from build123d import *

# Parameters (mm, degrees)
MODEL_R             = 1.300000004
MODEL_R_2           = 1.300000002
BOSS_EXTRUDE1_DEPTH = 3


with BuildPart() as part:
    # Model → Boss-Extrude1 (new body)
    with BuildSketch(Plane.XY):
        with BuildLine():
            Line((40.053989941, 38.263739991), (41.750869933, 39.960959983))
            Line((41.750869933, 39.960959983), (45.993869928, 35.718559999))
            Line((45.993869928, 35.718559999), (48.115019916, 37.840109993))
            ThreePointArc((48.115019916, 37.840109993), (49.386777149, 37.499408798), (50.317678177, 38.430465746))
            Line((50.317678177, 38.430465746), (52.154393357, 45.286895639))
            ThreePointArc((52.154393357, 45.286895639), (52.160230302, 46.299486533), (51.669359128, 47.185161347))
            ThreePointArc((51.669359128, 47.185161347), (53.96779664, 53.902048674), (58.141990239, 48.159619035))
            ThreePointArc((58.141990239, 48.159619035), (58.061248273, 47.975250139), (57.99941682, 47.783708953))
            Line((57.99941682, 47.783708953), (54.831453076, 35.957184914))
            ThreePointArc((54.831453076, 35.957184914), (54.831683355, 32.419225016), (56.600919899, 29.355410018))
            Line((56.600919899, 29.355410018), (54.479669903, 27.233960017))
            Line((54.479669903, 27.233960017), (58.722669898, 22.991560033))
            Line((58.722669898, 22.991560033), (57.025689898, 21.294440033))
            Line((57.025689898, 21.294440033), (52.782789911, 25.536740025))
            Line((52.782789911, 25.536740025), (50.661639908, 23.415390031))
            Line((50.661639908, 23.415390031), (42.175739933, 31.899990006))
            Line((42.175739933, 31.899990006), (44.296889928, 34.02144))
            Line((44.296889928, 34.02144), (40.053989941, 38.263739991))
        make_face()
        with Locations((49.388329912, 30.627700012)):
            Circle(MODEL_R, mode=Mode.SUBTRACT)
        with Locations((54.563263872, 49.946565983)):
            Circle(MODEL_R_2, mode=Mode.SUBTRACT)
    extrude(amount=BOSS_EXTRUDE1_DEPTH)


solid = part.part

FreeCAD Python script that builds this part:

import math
import FreeCAD as App
import Part
import Sketcher

V = App.Vector
Q = App.Units.Quantity

doc = App.newDocument("Part")
body = doc.addObject("PartDesign::Body", "Body")

# Sketch on XY plane
sketch1 = doc.addObject("Sketcher::SketchObject", "Sketch")
body.addObject(sketch1)
sketch1.AttachmentSupport = (doc.XY_Plane, [""])
sketch1.MapMode = "FlatFace"
sketch1.addGeometry(Part.LineSegment(V(41.75087, 39.96096, 0), V(40.05399, 38.26374, 0)), False)
sketch1.addGeometry(Part.LineSegment(V(40.05399, 38.26374, 0), V(44.29689, 34.02144, 0)), False)
sketch1.addGeometry(Part.LineSegment(V(44.29689, 34.02144, 0), V(42.17574, 31.89999, 0)), False)
sketch1.addGeometry(Part.LineSegment(V(42.17574, 31.89999, 0), V(50.66164, 23.41539, 0)), False)
sketch1.addGeometry(Part.LineSegment(V(50.66164, 23.41539, 0), V(52.78279, 25.53674, 0)), False)
sketch1.addGeometry(Part.LineSegment(V(52.78279, 25.53674, 0), V(57.02569, 21.29444, 0)), False)
sketch1.addGeometry(Part.LineSegment(V(57.02569, 21.29444, 0), V(58.72267, 22.99156, 0)), False)
sketch1.addGeometry(Part.LineSegment(V(58.72267, 22.99156, 0), V(54.47967, 27.23396, 0)), False)
sketch1.addGeometry(Part.LineSegment(V(54.47967, 27.23396, 0), V(56.60092, 29.35541, 0)), False)
sketch1.addGeometry(Part.ArcOfCircle(Part.Circle(V(61.433245, 34.188635, 0), V(0, 0, 1), 6.834576), math.radians(165.003195), math.radians(225.005333)), False)
sketch1.addGeometry(Part.LineSegment(V(54.831453, 35.957185, 0), V(57.999417, 47.783709, 0)), False)
sketch1.addGeometry(Part.ArcOfCircle(Part.Circle(V(59.934095, 47.264925, 0), V(0, 0, 1), 2.003027), math.radians(153.469718), math.radians(164.989281)), False)
sketch1.addGeometry(Part.ArcOfCircle(Part.Circle(V(54.563294, 49.946584, 0), V(0, 0, 1), 4.000039), math.radians(-26.534522), math.radians(223.65774)), False)
sketch1.addGeometry(Part.ArcOfCircle(Part.Circle(V(50.222406, 45.804345, 0), V(0, 0, 1), 2.000082), math.radians(-14.993763), math.radians(43.660207)), False)
sketch1.addGeometry(Part.LineSegment(V(52.154393, 45.286896, 0), V(50.317678, 38.430466, 0)), False)
sketch1.addGeometry(Part.ArcOfCircle(Part.Circle(V(49.045942, 38.771088, 0), V(0, 0, 1), 1.316562), math.radians(-134.998292), math.radians(-14.994172)), False)
sketch1.addGeometry(Part.LineSegment(V(48.11502, 37.84011, 0), V(45.99387, 35.71856, 0)), False)
sketch1.addGeometry(Part.LineSegment(V(45.99387, 35.71856, 0), V(41.75087, 39.96096, 0)), False)
sketch1.addGeometry(Part.Circle(V(49.38833, 30.6277, 0), V(0, 0, 1), 1.3), False)
sketch1.addGeometry(Part.Circle(V(54.563264, 49.946566, 0), V(0, 0, 1), 1.3), False)
sketch1.addConstraint(Sketcher.Constraint("Coincident", 0, 2, 1, 1))
sketch1.addConstraint(Sketcher.Constraint("Coincident", 1, 2, 2, 1))
sketch1.addConstraint(Sketcher.Constraint("Coincident", 2, 2, 3, 1))
sketch1.addConstraint(Sketcher.Constraint("Coincident", 3, 2, 4, 1))
sketch1.addConstraint(Sketcher.Constraint("Coincident", 4, 2, 5, 1))
sketch1.addConstraint(Sketcher.Constraint("Coincident", 5, 2, 6, 1))
sketch1.addConstraint(Sketcher.Constraint("Coincident", 6, 2, 7, 1))
sketch1.addConstraint(Sketcher.Constraint("Coincident", 7, 2, 8, 1))
sketch1.addConstraint(Sketcher.Constraint("Coincident", 8, 2, 9, 2))
sketch1.addConstraint(Sketcher.Constraint("Coincident", 9, 1, 10, 1))
sketch1.addConstraint(Sketcher.Constraint("Coincident", 10, 2, 11, 2))
sketch1.addConstraint(Sketcher.Constraint("Coincident", 11, 1, 12, 1))
sketch1.addConstraint(Sketcher.Constraint("Coincident", 12, 2, 13, 2))
sketch1.addConstraint(Sketcher.Constraint("Coincident", 13, 1, 14, 1))
sketch1.addConstraint(Sketcher.Constraint("Coincident", 14, 2, 15, 2))
sketch1.addConstraint(Sketcher.Constraint("Coincident", 15, 1, 16, 1))
sketch1.addConstraint(Sketcher.Constraint("Coincident", 16, 2, 17, 1))
sketch1.addConstraint(Sketcher.Constraint("Coincident", 17, 2, 0, 1))
sketch1.addConstraint(Sketcher.Constraint("Equal", 18, 19))
sketch1.addConstraint(Sketcher.Constraint("Perpendicular", 1, 2))
sketch1.addConstraint(Sketcher.Constraint("Perpendicular", 2, 5))
sketch1.addConstraint(Sketcher.Constraint("Parallel", 5, 7))
sketch1.addConstraint(Sketcher.Constraint("Parallel", 4, 8))
sketch1.addConstraint(Sketcher.Constraint("Parallel", 7, 17))
sketch1.addConstraint(Sketcher.Constraint("Equal", 1, 5))
sketch1.addConstraint(Sketcher.Constraint("Equal", 0, 6))
sketch1.addConstraint(Sketcher.Constraint("Equal", 8, 16))
sketch1.addConstraint(Sketcher.Constraint("Equal", 7, 17))
sketch1.addConstraint(Sketcher.Constraint("Diameter", 18, Q("2.6 mm")))
sketch1.addConstraint(Sketcher.Constraint("Radius", 12, Q("4.000039 mm")))
sketch1.addConstraint(Sketcher.Constraint("Radius", 13, Q("2.000082 mm")))
sketch1.addConstraint(Sketcher.Constraint("Radius", 9, Q("6.834576 mm")))
sketch1.addConstraint(Sketcher.Constraint("Radius", 11, Q("2.003027 mm")))
sketch1.addConstraint(Sketcher.Constraint("Radius", 15, Q("1.316562 mm")))
sketch1.addConstraint(Sketcher.Constraint("DistanceY", 5, 2, 1, 2, Q("12.727 mm")))
sketch1.addConstraint(Sketcher.Constraint("DistanceX", 7, 2, 6, 2, Q("4.243 mm")))
sketch1.addConstraint(Sketcher.Constraint("Distance", 4, Q("2.999901 mm")))
sketch1.addConstraint(Sketcher.Constraint("DistanceY", -1, 1, 18, 3, Q("30.6277 mm")))
sketch1.addConstraint(Sketcher.Constraint("DistanceX", 12, 3, 11, 3, Q("5.370802 mm")))
sketch1.addConstraint(Sketcher.Constraint("DistanceX", 0, 2, 1, 2, Q("4.2429 mm")))
sketch1.addConstraint(Sketcher.Constraint("DistanceY", 1, 2, 0, 2, Q("4.2423 mm")))
sketch1.addConstraint(Sketcher.Constraint("DistanceX", 2, 2, 3, 2, Q("8.4859 mm")))
sketch1.addConstraint(Sketcher.Constraint("DistanceY", 3, 2, 2, 2, Q("8.4846 mm")))
sketch1.addConstraint(Sketcher.Constraint("DistanceX", 1, 2, 4, 2, Q("8.4859 mm")))
sketch1.addConstraint(Sketcher.Constraint("DistanceX", 13, 1, 12, 3, Q("2.4089 mm")))
sketch1.addConstraint(Sketcher.Constraint("Distance", 0, Q("2.399991 mm")))
sketch1.addConstraint(Sketcher.Constraint("Distance", 8, Q("3.000042 mm")))
sketch1.addConstraint(Sketcher.Constraint("Distance", 14, Q("7.09818 mm")))
sketch1.addConstraint(Sketcher.Constraint("DistanceX", -1, 1, 18, 3, Q("49.38833 mm")))
sketch1.addConstraint(Sketcher.Constraint("DistanceX", -1, 1, 0, 2, Q("40.05399 mm")))
sketch1.addConstraint(Sketcher.Constraint("DistanceY", -1, 1, 0, 2, Q("38.26374 mm")))
sketch1.addConstraint(Sketcher.Constraint("DistanceX", -1, 1, 6, 2, Q("58.72267 mm")))
sketch1.addConstraint(Sketcher.Constraint("DistanceY", -1, 1, 10, 2, Q("47.783709 mm")))
sketch1.addConstraint(Sketcher.Constraint("DistanceX", -1, 1, 11, 1, Q("58.14199 mm")))
sketch1.addConstraint(Sketcher.Constraint("DistanceY", -1, 1, 11, 1, Q("48.159619 mm")))
sketch1.addConstraint(Sketcher.Constraint("DistanceX", -1, 1, 12, 2, Q("51.669359 mm")))
sketch1.addConstraint(Sketcher.Constraint("DistanceY", -1, 1, 12, 2, Q("47.185161 mm")))
sketch1.addConstraint(Sketcher.Constraint("DistanceX", -1, 1, 14, 2, Q("50.317678 mm")))
sketch1.addConstraint(Sketcher.Constraint("DistanceX", -1, 1, 15, 1, Q("48.11502 mm")))
sketch1.addConstraint(Sketcher.Constraint("DistanceX", -1, 1, 16, 2, Q("45.99387 mm")))
sketch1.addConstraint(Sketcher.Constraint("DistanceX", 11, 3, 9, 3, Q("1.49915 mm")))
sketch1.addConstraint(Sketcher.Constraint("DistanceY", 13, 3, 12, 3, Q("4.14224 mm")))
sketch1.addConstraint(Sketcher.Constraint("DistanceY", 13, 3, 19, 3, Q("4.142221 mm")))
sketch1.addConstraint(Sketcher.Constraint("DistanceX", 19, 3, 11, 3, Q("5.370832 mm")))
sketch1.addConstraint(Sketcher.Constraint("DistanceX", 15, 3, 9, 1, Q("5.785511 mm")))
pad1 = doc.addObject("PartDesign::Pad", "Pad")
body.addObject(pad1)
pad1.Profile = sketch1
pad1.Length = 3

doc.recompute()
